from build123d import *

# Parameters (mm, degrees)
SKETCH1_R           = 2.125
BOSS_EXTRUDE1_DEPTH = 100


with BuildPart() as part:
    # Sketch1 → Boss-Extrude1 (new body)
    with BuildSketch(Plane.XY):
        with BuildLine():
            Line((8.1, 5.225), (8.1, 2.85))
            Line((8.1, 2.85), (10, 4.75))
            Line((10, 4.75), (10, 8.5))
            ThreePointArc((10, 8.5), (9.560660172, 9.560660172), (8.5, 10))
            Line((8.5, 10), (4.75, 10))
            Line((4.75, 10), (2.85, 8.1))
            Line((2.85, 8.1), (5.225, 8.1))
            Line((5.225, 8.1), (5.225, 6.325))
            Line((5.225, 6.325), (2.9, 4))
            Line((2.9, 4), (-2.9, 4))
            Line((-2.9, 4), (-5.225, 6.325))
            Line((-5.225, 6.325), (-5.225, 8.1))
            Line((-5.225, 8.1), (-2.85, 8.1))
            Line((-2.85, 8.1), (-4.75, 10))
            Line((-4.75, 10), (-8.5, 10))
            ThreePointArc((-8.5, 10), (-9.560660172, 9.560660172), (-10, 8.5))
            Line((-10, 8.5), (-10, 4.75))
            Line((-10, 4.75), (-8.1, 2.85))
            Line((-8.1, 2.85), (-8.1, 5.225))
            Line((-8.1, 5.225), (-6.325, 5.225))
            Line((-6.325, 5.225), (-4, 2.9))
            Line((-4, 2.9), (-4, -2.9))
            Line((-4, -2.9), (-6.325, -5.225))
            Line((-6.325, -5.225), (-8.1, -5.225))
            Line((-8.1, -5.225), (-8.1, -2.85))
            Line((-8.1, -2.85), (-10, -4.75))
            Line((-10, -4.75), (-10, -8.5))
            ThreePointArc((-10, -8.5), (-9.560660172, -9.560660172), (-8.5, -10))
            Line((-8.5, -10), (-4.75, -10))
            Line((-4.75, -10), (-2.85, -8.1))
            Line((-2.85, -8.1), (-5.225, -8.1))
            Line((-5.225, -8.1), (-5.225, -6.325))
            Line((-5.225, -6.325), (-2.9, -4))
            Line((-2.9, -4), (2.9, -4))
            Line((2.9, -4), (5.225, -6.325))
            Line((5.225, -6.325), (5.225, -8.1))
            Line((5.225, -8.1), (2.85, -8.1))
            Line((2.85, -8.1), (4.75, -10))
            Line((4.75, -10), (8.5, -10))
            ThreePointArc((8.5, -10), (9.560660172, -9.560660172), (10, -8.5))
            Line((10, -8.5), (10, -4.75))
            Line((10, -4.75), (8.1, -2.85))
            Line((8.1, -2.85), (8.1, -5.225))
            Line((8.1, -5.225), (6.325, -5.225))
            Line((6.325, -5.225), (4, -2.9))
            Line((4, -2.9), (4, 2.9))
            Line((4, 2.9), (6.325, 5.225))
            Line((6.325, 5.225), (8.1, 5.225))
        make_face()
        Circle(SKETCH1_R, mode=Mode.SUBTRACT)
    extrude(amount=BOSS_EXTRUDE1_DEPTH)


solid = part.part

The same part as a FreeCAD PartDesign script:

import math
import FreeCAD as App
import Part
import Sketcher
from FreeCAD import Vector

doc = App.newDocument("Part")
body = doc.addObject("PartDesign::Body", "Body")

# Sketch on XY plane
sketch1 = body.newObject("Sketcher::SketchObject", "Sketch")
sketch1.AttachmentSupport = (doc.getObject("XY_Plane"), [""])
sketch1.MapMode = "FlatFace"
sketch1.addGeometry([
    Part.LineSegment(Vector(8.1, 5.2, 0), Vector(8.1, 2.9, 0)),  # 0
    Part.LineSegment(Vector(8.1, 2.9, 0), Vector(10, 4.8, 0)),  # 1
    Part.LineSegment(Vector(10, 4.8, 0), Vector(10, 8.5, 0)),  # 2
    Part.ArcOfCircle(Part.Circle(Vector(8.5, 8.5, 0), Vector(0, 0, 1), 1.5), math.radians(0), math.radians(90)),  # 3
    Part.LineSegment(Vector(8.5, 10, 0), Vector(4.8, 10, 0)),  # 4
    Part.LineSegment(Vector(4.8, 10, 0), Vector(2.9, 8.1, 0)),  # 5
    Part.LineSegment(Vector(2.9, 8.1, 0), Vector(5.2, 8.1, 0)),  # 6
    Part.LineSegment(Vector(5.2, 8.1, 0), Vector(5.2, 6.3, 0)),  # 7
    Part.LineSegment(Vector(5.2, 6.3, 0), Vector(2.9, 4, 0)),  # 8
    Part.LineSegment(Vector(2.9, 4, 0), Vector(-2.9, 4, 0)),  # 9
    Part.LineSegment(Vector(-2.9, 4, 0), Vector(-5.2, 6.3, 0)),  # 10
    Part.LineSegment(Vector(-5.2, 6.3, 0), Vector(-5.2, 8.1, 0)),  # 11
    Part.LineSegment(Vector(-5.2, 8.1, 0), Vector(-2.9, 8.1, 0)),  # 12
    Part.LineSegment(Vector(-2.9, 8.1, 0), Vector(-4.8, 10, 0)),  # 13
    Part.LineSegment(Vector(-4.8, 10, 0), Vector(-8.5, 10, 0)),  # 14
    Part.ArcOfCircle(Part.Circle(Vector(-8.5, 8.5, 0), Vector(0, 0, 1), 1.5), math.radians(90), math.radians(180)),  # 15
    Part.LineSegment(Vector(-10, 8.5, 0), Vector(-10, 4.8, 0)),  # 16
    Part.LineSegment(Vector(-10, 4.8, 0), Vector(-8.1, 2.9, 0)),  # 17
    Part.LineSegment(Vector(-8.1, 2.9, 0), Vector(-8.1, 5.2, 0)),  # 18
    Part.LineSegment(Vector(-8.1, 5.2, 0), Vector(-6.3, 5.2, 0)),  # 19
    Part.LineSegment(Vector(-6.3, 5.2, 0), Vector(-4, 2.9, 0)),  # 20
    Part.LineSegment(Vector(-4, 2.9, 0), Vector(-4, -2.9, 0)),  # 21
    Part.LineSegment(Vector(-4, -2.9, 0), Vector(-6.3, -5.2, 0)),  # 22
    Part.LineSegment(Vector(-6.3, -5.2, 0), Vector(-8.1, -5.2, 0)),  # 23
    Part.LineSegment(Vector(-8.1, -5.2, 0), Vector(-8.1, -2.9, 0)),  # 24
    Part.LineSegment(Vector(-8.1, -2.9, 0), Vector(-10, -4.8, 0)),  # 25
    Part.LineSegment(Vector(-10, -4.8, 0), Vector(-10, -8.5, 0)),  # 26
    Part.ArcOfCircle(Part.Circle(Vector(-8.5, -8.5, 0), Vector(0, 0, 1), 1.5), math.radians(180), math.radians(270)),  # 27
    Part.LineSegment(Vector(-8.5, -10, 0), Vector(-4.8, -10, 0)),  # 28
    Part.LineSegment(Vector(-4.8, -10, 0), Vector(-2.9, -8.1, 0)),  # 29
    Part.LineSegment(Vector(-2.9, -8.1, 0), Vector(-5.2, -8.1, 0)),  # 30
    Part.LineSegment(Vector(-5.2, -8.1, 0), Vector(-5.2, -6.3, 0)),  # 31
    Part.LineSegment(Vector(-5.2, -6.3, 0), Vector(-2.9, -4, 0)),  # 32
    Part.LineSegment(Vector(-2.9, -4, 0), Vector(2.9, -4, 0)),  # 33
    Part.LineSegment(Vector(2.9, -4, 0), Vector(5.2, -6.3, 0)),  # 34
    Part.LineSegment(Vector(5.2, -6.3, 0), Vector(5.2, -8.1, 0)),  # 35
    Part.LineSegment(Vector(5.2, -8.1, 0), Vector(2.9, -8.1, 0)),  # 36
    Part.LineSegment(Vector(2.9, -8.1, 0), Vector(4.8, -10, 0)),  # 37
    Part.LineSegment(Vector(4.8, -10, 0), Vector(8.5, -10, 0)),  # 38
    Part.ArcOfCircle(Part.Circle(Vector(8.5, -8.5, 0), Vector(0, 0, 1), 1.5), math.radians(-90), math.radians(0)),  # 39
    Part.LineSegment(Vector(10, -8.5, 0), Vector(10, -4.8, 0)),  # 40
    Part.LineSegment(Vector(10, -4.8, 0), Vector(8.1, -2.9, 0)),  # 41
    Part.LineSegment(Vector(8.1, -2.9, 0), Vector(8.1, -5.2, 0)),  # 42
    Part.LineSegment(Vector(8.1, -5.2, 0), Vector(6.3, -5.2, 0)),  # 43
    Part.LineSegment(Vector(6.3, -5.2, 0), Vector(4, -2.9, 0)),  # 44
    Part.LineSegment(Vector(4, -2.9, 0), Vector(4, 2.9, 0)),  # 45
    Part.LineSegment(Vector(4, 2.9, 0), Vector(6.3, 5.2, 0)),  # 46
    Part.LineSegment(Vector(6.3, 5.2, 0), Vector(8.1, 5.2, 0)),  # 47
    Part.Circle(Vector(0, 0, 0), Vector(0, 0, 1), 2.1),  # 48
], False)
sketch1.addConstraint([
    Sketcher.Constraint("Coincident", 0, 2, 1, 1),
    Sketcher.Constraint("Coincident", 1, 2, 2, 1),
    Sketcher.Constraint("Tangent", 2, 2, 3, 1),
    Sketcher.Constraint("Tangent", 3, 2, 4, 1),
    Sketcher.Constraint("Coincident", 4, 2, 5, 1),
    Sketcher.Constraint("Coincident", 5, 2, 6, 1),
    Sketcher.Constraint("Coincident", 6, 2, 7, 1),
    Sketcher.Constraint("Coincident", 7, 2, 8, 1),
    Sketcher.Constraint("Coincident", 8, 2, 9, 1),
    Sketcher.Constraint("Coincident", 9, 2, 10, 1),
    Sketcher.Constraint("Coincident", 10, 2, 11, 1),
    Sketcher.Constraint("Coincident", 11, 2, 12, 1),
    Sketcher.Constraint("Coincident", 12, 2, 13, 1),
    Sketcher.Constraint("Coincident", 13, 2, 14, 1),
    Sketcher.Constraint("Tangent", 14, 2, 15, 1),
    Sketcher.Constraint("Tangent", 15, 2, 16, 1),
    Sketcher.Constraint("Coincident", 16, 2, 17, 1),
    Sketcher.Constraint("Coincident", 17, 2, 18, 1),
    Sketcher.Constraint("Coincident", 18, 2, 19, 1),
    Sketcher.Constraint("Coincident", 19, 2, 20, 1),
    Sketcher.Constraint("Coincident", 20, 2, 21, 1),
    Sketcher.Constraint("Coincident", 21, 2, 22, 1),
    Sketcher.Constraint("Coincident", 22, 2, 23, 1),
    Sketcher.Constraint("Coincident", 23, 2, 24, 1),
    Sketcher.Constraint("Coincident", 24, 2, 25, 1),
    Sketcher.Constraint("Coincident", 25, 2, 26, 1),
    Sketcher.Constraint("Tangent", 26, 2, 27, 1),
    Sketcher.Constraint("Tangent", 27, 2, 28, 1),
    Sketcher.Constraint("Coincident", 28, 2, 29, 1),
    Sketcher.Constraint("Coincident", 29, 2, 30, 1),
    Sketcher.Constraint("Coincident", 30, 2, 31, 1),
    Sketcher.Constraint("Coincident", 31, 2, 32, 1),
    Sketcher.Constraint("Coincident", 32, 2, 33, 1),
    Sketcher.Constraint("Coincident", 33, 2, 34, 1),
    Sketcher.Constraint("Coincident", 34, 2, 35, 1),
    Sketcher.Constraint("Coincident", 35, 2, 36, 1),
    Sketcher.Constraint("Coincident", 36, 2, 37, 1),
    Sketcher.Constraint("Coincident", 37, 2, 38, 1),
    Sketcher.Constraint("Tangent", 38, 2, 39, 1),
    Sketcher.Constraint("Tangent", 39, 2, 40, 1),
    Sketcher.Constraint("Coincident", 40, 2, 41, 1),
    Sketcher.Constraint("Coincident", 41, 2, 42, 1),
    Sketcher.Constraint("Coincident", 42, 2, 43, 1),
    Sketcher.Constraint("Coincident", 43, 2, 44, 1),
    Sketcher.Constraint("Coincident", 44, 2, 45, 1),
    Sketcher.Constraint("Coincident", 45, 2, 46, 1),
    Sketcher.Constraint("Coincident", 46, 2, 47, 1),
    Sketcher.Constraint("Coincident", 47, 2, 0, 1),
    Sketcher.Constraint("Vertical", 0),
    Sketcher.Constraint("Vertical", 2),
    Sketcher.Constraint("Horizontal", 4),
    Sketcher.Constraint("Horizontal", 6),
    Sketcher.Constraint("Vertical", 7),
    Sketcher.Constraint("Horizontal", 9),
    Sketcher.Constraint("Vertical", 11),
    Sketcher.Constraint("Horizontal", 12),
    Sketcher.Constraint("Horizontal", 14),
    Sketcher.Constraint("Vertical", 16),
    Sketcher.Constraint("Vertical", 18),
    Sketcher.Constraint("Horizontal", 19),
    Sketcher.Constraint("Vertical", 21),
    Sketcher.Constraint("Horizontal", 23),
    Sketcher.Constraint("Vertical", 24),
    Sketcher.Constraint("Vertical", 26),
    Sketcher.Constraint("Horizontal", 28),
    Sketcher.Constraint("Horizontal", 30),
    Sketcher.Constraint("Vertical", 31),
    Sketcher.Constraint("Horizontal", 33),
    Sketcher.Constraint("Vertical", 35),
    Sketcher.Constraint("Horizontal", 36),
    Sketcher.Constraint("Horizontal", 38),
    Sketcher.Constraint("Vertical", 40),
    Sketcher.Constraint("Vertical", 42),
    Sketcher.Constraint("Horizontal", 43),
    Sketcher.Constraint("Vertical", 45),
    Sketcher.Constraint("Horizontal", 47),
    Sketcher.Constraint("Coincident", 48, 3, -1, 1),
    Sketcher.Constraint("Equal", 3, 15),
    Sketcher.Constraint("Equal", 15, 27),
    Sketcher.Constraint("Equal", 27, 39),
    Sketcher.Constraint("Symmetric", 3, 3, 27, 3, -1, 1),
    Sketcher.Constraint("Symmetric", 15, 3, 39, 3, -1, 1),
    Sketcher.Constraint("Symmetric", 0, 2, 24, 2, -1, 1),
    Sketcher.Constraint("Symmetric", 5, 2, 29, 2, -1, 1),
    Sketcher.Constraint("Symmetric", 7, 2, 31, 2, -1, 1),
    Sketcher.Constraint("Symmetric", 8, 2, 32, 2, -1, 1),
    Sketcher.Constraint("Symmetric", 10, 2, 34, 2, -1, 1),
    Sketcher.Constraint("Symmetric", 12, 2, 36, 2, -1, 1),
    Sketcher.Constraint("Symmetric", 17, 2, 41, 2, -1, 1),
    Sketcher.Constraint("Symmetric", 19, 2, 43, 2, -1, 1),
    Sketcher.Constraint("Symmetric", 20, 2, 44, 2, -1, 1),
    Sketcher.Constraint("Symmetric", 22, 2, 46, 2, -1, 1),
    Sketcher.Constraint("Symmetric", 3, 3, 15, 3, -2),
    Sketcher.Constraint("Symmetric", 7, 2, 10, 2, -2),
    Sketcher.Constraint("Symmetric", 5, 2, 12, 2, -2),
    Sketcher.Constraint("Symmetric", 0, 2, 17, 2, -2),
    Sketcher.Constraint("Symmetric", 22, 2, 43, 2, -2),
    Sketcher.Constraint("Parallel", 1, 5),
    Sketcher.Constraint("Parallel", 5, 8),
    Sketcher.Constraint("Perpendicular", 8, 10),
    Sketcher.Constraint("Parallel", 10, 13),
    Sketcher.Constraint("Parallel", 13, 17),
    Sketcher.Constraint("Parallel", 17, 20),
    Sketcher.Constraint("Perpendicular", 20, 22),
    Sketcher.Constraint("Parallel", 22, 25),
    Sketcher.Constraint("Parallel", 25, 29),
    Sketcher.Constraint("Perpendicular", 32, 34),
    Sketcher.Constraint("Parallel", 34, 37),
    Sketcher.Constraint("Parallel", 37, 41),
    Sketcher.Constraint("Perpendicular", 44, 46),
    Sketcher.Constraint("Horizontal", 1, 2, 16, 2),
    Sketcher.Constraint("Equal", 36, 0),
    Sketcher.Constraint("Equal", 38, 2),
    Sketcher.Constraint("Equal", 47, 7),
    Sketcher.Constraint("Equal", 33, 21),
    Sketcher.Constraint("Equal", 1, 5),
    Sketcher.Constraint("Equal", 10, 20),
    Sketcher.Constraint("Radius", 3, 1.5),
    Sketcher.Constraint("Diameter", 48, 4.25),
    Sketcher.Constraint("DistanceX", 9, 2, 9, 1, 5.8),
    Sketcher.Constraint("DistanceX", -1, 1, 1, 2, 10.0),
    Sketcher.Constraint("DistanceY", -1, 1, 8, 2, 4.0),
    Sketcher.Constraint("DistanceX", 4, 2, 4, 1, 3.75),
    Sketcher.Constraint("DistanceX", -1, 1, 0, 2, 8.1),
    Sketcher.Constraint("DistanceX", 6, 1, 6, 2, 2.375),
])
pad1 = body.newObject("PartDesign::Pad", "Pad")
pad1.Profile = sketch1
pad1.Length = 100

doc.recompute()
